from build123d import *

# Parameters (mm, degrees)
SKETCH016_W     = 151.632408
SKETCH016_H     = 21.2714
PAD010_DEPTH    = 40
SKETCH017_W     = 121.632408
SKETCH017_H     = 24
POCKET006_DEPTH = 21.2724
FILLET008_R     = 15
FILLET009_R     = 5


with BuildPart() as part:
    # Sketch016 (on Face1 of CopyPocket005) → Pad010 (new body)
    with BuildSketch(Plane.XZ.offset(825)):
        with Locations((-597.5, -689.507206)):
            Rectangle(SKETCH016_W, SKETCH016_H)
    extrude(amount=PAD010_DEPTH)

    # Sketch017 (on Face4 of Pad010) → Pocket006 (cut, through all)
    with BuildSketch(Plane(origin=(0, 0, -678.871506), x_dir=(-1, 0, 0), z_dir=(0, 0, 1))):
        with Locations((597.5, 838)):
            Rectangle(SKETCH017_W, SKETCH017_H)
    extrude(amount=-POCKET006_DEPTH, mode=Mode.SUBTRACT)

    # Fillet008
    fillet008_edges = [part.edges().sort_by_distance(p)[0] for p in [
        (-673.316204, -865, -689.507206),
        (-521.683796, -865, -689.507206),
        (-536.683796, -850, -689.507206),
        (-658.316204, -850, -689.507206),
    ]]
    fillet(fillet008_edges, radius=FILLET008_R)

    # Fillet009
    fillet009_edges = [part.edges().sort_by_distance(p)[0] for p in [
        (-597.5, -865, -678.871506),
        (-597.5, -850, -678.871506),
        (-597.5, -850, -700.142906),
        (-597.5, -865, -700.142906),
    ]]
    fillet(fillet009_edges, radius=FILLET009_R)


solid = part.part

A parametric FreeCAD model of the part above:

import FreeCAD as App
import Part
import Sketcher
from FreeCAD import Vector
Q = App.Units.Quantity


def edges_at(feature, points):
    """Names of the edges that pass closest to the given points."""
    edges = feature.Shape.Edges
    near = lambda p: min(range(len(edges)), key=lambda i: edges[i].distToShape(Part.Vertex(*p))[0])
    return sorted({f"Edge{near(p) + 1}" for p in points})


def add_polygon(sketch, points):
    """Adds a closed chain of lines whose ends are joined by coincident constraints."""
    first, n = sketch.GeometryCount, len(points)
    for a, b in zip(points, points[1:] + points[:1]):
        sketch.addGeometry(Part.LineSegment(App.Vector(*a, 0), App.Vector(*b, 0)), False)
    for i in range(n):
        sketch.addConstraint(Sketcher.Constraint("Coincident", first + i, 2, first + (i + 1) % n, 1))

doc = App.newDocument("Part")
body = doc.addObject("PartDesign::Body", "Body")

# Sketch on XZ plane
sketch1 = body.newObject("Sketcher::SketchObject", "Sketch")
sketch1.AttachmentSupport = (doc.getObject("XZ_Plane"), [""])
sketch1.MapMode = "FlatFace"
sketch1.AttachmentOffset = App.Placement(Vector(0, 0, 825), App.Rotation())
add_polygon(sketch1, [(-673, -679), (-673, -700), (-522, -700), (-522, -679)])  # lines 0-3
sketch1.addConstraint([
    Sketcher.Constraint("Vertical", 0),
    Sketcher.Constraint("Horizontal", 1),
    Sketcher.Constraint("Vertical", 2),
    Sketcher.Constraint("Horizontal", 3),
    Sketcher.Constraint("DistanceY", 0, 2, 0, 1, Q("21.2714 mm")),
    Sketcher.Constraint("DistanceX", 1, 1, 1, 2, Q("151.632408 mm")),
    Sketcher.Constraint("DistanceX", 0, 2, -1, 1, Q("673.316204 mm")),
    Sketcher.Constraint("DistanceY", 0, 2, -1, 1, Q("700.142906 mm")),
])
pad1 = body.newObject("PartDesign::Pad", "Pad")
pad1.Profile = sketch1
pad1.Length = 40

# Sketch on XY plane
sketch2 = body.newObject("Sketcher::SketchObject", "Sketch001")
sketch2.AttachmentSupport = (doc.getObject("XY_Plane"), [""])
sketch2.MapMode = "FlatFace"
sketch2.AttachmentOffset = App.Placement(Vector(0, 0, -678.871506), App.Rotation())
add_polygon(sketch2, [(-537, -850), (-537, -826), (-658, -826), (-658, -850)])  # lines 0-3
sketch2.addConstraint([
    Sketcher.Constraint("Vertical", 0),
    Sketcher.Constraint("Horizontal", 1),
    Sketcher.Constraint("Vertical", 2),
    Sketcher.Constraint("Horizontal", 3),
    Sketcher.Constraint("DistanceY", 0, 1, 0, 2, Q("24 mm")),
    Sketcher.Constraint("DistanceY", 0, 2, -1, 1, Q("826 mm")),
    Sketcher.Constraint("DistanceX", 1, 2, 1, 1, Q("121.632408 mm")),
    Sketcher.Constraint("DistanceX", 0, 2, -1, 1, Q("536.683796 mm")),
])
pocket1 = body.newObject("PartDesign::Pocket", "Pocket")
pocket1.Profile = sketch2
pocket1.Type = "ThroughAll"
doc.recompute()

fillet = body.newObject("PartDesign::Fillet", "Fillet")
fillet.Base = (pocket1, edges_at(pocket1, [
    (-673.316, -865, -689.507),
    (-521.684, -865, -689.507),
    (-536.684, -850, -689.507),
    (-658.316, -850, -689.507),
]))
fillet.Radius = 15
doc.recompute()

fillet2 = body.newObject("PartDesign::Fillet", "Fillet001")
fillet2.Base = (fillet, edges_at(fillet, [
    (-597.5, -865, -678.872),
    (-597.5, -850, -678.872),
    (-597.5, -850, -700.143),
    (-597.5, -865, -700.143),
]))
fillet2.Radius = 5

doc.recompute()
